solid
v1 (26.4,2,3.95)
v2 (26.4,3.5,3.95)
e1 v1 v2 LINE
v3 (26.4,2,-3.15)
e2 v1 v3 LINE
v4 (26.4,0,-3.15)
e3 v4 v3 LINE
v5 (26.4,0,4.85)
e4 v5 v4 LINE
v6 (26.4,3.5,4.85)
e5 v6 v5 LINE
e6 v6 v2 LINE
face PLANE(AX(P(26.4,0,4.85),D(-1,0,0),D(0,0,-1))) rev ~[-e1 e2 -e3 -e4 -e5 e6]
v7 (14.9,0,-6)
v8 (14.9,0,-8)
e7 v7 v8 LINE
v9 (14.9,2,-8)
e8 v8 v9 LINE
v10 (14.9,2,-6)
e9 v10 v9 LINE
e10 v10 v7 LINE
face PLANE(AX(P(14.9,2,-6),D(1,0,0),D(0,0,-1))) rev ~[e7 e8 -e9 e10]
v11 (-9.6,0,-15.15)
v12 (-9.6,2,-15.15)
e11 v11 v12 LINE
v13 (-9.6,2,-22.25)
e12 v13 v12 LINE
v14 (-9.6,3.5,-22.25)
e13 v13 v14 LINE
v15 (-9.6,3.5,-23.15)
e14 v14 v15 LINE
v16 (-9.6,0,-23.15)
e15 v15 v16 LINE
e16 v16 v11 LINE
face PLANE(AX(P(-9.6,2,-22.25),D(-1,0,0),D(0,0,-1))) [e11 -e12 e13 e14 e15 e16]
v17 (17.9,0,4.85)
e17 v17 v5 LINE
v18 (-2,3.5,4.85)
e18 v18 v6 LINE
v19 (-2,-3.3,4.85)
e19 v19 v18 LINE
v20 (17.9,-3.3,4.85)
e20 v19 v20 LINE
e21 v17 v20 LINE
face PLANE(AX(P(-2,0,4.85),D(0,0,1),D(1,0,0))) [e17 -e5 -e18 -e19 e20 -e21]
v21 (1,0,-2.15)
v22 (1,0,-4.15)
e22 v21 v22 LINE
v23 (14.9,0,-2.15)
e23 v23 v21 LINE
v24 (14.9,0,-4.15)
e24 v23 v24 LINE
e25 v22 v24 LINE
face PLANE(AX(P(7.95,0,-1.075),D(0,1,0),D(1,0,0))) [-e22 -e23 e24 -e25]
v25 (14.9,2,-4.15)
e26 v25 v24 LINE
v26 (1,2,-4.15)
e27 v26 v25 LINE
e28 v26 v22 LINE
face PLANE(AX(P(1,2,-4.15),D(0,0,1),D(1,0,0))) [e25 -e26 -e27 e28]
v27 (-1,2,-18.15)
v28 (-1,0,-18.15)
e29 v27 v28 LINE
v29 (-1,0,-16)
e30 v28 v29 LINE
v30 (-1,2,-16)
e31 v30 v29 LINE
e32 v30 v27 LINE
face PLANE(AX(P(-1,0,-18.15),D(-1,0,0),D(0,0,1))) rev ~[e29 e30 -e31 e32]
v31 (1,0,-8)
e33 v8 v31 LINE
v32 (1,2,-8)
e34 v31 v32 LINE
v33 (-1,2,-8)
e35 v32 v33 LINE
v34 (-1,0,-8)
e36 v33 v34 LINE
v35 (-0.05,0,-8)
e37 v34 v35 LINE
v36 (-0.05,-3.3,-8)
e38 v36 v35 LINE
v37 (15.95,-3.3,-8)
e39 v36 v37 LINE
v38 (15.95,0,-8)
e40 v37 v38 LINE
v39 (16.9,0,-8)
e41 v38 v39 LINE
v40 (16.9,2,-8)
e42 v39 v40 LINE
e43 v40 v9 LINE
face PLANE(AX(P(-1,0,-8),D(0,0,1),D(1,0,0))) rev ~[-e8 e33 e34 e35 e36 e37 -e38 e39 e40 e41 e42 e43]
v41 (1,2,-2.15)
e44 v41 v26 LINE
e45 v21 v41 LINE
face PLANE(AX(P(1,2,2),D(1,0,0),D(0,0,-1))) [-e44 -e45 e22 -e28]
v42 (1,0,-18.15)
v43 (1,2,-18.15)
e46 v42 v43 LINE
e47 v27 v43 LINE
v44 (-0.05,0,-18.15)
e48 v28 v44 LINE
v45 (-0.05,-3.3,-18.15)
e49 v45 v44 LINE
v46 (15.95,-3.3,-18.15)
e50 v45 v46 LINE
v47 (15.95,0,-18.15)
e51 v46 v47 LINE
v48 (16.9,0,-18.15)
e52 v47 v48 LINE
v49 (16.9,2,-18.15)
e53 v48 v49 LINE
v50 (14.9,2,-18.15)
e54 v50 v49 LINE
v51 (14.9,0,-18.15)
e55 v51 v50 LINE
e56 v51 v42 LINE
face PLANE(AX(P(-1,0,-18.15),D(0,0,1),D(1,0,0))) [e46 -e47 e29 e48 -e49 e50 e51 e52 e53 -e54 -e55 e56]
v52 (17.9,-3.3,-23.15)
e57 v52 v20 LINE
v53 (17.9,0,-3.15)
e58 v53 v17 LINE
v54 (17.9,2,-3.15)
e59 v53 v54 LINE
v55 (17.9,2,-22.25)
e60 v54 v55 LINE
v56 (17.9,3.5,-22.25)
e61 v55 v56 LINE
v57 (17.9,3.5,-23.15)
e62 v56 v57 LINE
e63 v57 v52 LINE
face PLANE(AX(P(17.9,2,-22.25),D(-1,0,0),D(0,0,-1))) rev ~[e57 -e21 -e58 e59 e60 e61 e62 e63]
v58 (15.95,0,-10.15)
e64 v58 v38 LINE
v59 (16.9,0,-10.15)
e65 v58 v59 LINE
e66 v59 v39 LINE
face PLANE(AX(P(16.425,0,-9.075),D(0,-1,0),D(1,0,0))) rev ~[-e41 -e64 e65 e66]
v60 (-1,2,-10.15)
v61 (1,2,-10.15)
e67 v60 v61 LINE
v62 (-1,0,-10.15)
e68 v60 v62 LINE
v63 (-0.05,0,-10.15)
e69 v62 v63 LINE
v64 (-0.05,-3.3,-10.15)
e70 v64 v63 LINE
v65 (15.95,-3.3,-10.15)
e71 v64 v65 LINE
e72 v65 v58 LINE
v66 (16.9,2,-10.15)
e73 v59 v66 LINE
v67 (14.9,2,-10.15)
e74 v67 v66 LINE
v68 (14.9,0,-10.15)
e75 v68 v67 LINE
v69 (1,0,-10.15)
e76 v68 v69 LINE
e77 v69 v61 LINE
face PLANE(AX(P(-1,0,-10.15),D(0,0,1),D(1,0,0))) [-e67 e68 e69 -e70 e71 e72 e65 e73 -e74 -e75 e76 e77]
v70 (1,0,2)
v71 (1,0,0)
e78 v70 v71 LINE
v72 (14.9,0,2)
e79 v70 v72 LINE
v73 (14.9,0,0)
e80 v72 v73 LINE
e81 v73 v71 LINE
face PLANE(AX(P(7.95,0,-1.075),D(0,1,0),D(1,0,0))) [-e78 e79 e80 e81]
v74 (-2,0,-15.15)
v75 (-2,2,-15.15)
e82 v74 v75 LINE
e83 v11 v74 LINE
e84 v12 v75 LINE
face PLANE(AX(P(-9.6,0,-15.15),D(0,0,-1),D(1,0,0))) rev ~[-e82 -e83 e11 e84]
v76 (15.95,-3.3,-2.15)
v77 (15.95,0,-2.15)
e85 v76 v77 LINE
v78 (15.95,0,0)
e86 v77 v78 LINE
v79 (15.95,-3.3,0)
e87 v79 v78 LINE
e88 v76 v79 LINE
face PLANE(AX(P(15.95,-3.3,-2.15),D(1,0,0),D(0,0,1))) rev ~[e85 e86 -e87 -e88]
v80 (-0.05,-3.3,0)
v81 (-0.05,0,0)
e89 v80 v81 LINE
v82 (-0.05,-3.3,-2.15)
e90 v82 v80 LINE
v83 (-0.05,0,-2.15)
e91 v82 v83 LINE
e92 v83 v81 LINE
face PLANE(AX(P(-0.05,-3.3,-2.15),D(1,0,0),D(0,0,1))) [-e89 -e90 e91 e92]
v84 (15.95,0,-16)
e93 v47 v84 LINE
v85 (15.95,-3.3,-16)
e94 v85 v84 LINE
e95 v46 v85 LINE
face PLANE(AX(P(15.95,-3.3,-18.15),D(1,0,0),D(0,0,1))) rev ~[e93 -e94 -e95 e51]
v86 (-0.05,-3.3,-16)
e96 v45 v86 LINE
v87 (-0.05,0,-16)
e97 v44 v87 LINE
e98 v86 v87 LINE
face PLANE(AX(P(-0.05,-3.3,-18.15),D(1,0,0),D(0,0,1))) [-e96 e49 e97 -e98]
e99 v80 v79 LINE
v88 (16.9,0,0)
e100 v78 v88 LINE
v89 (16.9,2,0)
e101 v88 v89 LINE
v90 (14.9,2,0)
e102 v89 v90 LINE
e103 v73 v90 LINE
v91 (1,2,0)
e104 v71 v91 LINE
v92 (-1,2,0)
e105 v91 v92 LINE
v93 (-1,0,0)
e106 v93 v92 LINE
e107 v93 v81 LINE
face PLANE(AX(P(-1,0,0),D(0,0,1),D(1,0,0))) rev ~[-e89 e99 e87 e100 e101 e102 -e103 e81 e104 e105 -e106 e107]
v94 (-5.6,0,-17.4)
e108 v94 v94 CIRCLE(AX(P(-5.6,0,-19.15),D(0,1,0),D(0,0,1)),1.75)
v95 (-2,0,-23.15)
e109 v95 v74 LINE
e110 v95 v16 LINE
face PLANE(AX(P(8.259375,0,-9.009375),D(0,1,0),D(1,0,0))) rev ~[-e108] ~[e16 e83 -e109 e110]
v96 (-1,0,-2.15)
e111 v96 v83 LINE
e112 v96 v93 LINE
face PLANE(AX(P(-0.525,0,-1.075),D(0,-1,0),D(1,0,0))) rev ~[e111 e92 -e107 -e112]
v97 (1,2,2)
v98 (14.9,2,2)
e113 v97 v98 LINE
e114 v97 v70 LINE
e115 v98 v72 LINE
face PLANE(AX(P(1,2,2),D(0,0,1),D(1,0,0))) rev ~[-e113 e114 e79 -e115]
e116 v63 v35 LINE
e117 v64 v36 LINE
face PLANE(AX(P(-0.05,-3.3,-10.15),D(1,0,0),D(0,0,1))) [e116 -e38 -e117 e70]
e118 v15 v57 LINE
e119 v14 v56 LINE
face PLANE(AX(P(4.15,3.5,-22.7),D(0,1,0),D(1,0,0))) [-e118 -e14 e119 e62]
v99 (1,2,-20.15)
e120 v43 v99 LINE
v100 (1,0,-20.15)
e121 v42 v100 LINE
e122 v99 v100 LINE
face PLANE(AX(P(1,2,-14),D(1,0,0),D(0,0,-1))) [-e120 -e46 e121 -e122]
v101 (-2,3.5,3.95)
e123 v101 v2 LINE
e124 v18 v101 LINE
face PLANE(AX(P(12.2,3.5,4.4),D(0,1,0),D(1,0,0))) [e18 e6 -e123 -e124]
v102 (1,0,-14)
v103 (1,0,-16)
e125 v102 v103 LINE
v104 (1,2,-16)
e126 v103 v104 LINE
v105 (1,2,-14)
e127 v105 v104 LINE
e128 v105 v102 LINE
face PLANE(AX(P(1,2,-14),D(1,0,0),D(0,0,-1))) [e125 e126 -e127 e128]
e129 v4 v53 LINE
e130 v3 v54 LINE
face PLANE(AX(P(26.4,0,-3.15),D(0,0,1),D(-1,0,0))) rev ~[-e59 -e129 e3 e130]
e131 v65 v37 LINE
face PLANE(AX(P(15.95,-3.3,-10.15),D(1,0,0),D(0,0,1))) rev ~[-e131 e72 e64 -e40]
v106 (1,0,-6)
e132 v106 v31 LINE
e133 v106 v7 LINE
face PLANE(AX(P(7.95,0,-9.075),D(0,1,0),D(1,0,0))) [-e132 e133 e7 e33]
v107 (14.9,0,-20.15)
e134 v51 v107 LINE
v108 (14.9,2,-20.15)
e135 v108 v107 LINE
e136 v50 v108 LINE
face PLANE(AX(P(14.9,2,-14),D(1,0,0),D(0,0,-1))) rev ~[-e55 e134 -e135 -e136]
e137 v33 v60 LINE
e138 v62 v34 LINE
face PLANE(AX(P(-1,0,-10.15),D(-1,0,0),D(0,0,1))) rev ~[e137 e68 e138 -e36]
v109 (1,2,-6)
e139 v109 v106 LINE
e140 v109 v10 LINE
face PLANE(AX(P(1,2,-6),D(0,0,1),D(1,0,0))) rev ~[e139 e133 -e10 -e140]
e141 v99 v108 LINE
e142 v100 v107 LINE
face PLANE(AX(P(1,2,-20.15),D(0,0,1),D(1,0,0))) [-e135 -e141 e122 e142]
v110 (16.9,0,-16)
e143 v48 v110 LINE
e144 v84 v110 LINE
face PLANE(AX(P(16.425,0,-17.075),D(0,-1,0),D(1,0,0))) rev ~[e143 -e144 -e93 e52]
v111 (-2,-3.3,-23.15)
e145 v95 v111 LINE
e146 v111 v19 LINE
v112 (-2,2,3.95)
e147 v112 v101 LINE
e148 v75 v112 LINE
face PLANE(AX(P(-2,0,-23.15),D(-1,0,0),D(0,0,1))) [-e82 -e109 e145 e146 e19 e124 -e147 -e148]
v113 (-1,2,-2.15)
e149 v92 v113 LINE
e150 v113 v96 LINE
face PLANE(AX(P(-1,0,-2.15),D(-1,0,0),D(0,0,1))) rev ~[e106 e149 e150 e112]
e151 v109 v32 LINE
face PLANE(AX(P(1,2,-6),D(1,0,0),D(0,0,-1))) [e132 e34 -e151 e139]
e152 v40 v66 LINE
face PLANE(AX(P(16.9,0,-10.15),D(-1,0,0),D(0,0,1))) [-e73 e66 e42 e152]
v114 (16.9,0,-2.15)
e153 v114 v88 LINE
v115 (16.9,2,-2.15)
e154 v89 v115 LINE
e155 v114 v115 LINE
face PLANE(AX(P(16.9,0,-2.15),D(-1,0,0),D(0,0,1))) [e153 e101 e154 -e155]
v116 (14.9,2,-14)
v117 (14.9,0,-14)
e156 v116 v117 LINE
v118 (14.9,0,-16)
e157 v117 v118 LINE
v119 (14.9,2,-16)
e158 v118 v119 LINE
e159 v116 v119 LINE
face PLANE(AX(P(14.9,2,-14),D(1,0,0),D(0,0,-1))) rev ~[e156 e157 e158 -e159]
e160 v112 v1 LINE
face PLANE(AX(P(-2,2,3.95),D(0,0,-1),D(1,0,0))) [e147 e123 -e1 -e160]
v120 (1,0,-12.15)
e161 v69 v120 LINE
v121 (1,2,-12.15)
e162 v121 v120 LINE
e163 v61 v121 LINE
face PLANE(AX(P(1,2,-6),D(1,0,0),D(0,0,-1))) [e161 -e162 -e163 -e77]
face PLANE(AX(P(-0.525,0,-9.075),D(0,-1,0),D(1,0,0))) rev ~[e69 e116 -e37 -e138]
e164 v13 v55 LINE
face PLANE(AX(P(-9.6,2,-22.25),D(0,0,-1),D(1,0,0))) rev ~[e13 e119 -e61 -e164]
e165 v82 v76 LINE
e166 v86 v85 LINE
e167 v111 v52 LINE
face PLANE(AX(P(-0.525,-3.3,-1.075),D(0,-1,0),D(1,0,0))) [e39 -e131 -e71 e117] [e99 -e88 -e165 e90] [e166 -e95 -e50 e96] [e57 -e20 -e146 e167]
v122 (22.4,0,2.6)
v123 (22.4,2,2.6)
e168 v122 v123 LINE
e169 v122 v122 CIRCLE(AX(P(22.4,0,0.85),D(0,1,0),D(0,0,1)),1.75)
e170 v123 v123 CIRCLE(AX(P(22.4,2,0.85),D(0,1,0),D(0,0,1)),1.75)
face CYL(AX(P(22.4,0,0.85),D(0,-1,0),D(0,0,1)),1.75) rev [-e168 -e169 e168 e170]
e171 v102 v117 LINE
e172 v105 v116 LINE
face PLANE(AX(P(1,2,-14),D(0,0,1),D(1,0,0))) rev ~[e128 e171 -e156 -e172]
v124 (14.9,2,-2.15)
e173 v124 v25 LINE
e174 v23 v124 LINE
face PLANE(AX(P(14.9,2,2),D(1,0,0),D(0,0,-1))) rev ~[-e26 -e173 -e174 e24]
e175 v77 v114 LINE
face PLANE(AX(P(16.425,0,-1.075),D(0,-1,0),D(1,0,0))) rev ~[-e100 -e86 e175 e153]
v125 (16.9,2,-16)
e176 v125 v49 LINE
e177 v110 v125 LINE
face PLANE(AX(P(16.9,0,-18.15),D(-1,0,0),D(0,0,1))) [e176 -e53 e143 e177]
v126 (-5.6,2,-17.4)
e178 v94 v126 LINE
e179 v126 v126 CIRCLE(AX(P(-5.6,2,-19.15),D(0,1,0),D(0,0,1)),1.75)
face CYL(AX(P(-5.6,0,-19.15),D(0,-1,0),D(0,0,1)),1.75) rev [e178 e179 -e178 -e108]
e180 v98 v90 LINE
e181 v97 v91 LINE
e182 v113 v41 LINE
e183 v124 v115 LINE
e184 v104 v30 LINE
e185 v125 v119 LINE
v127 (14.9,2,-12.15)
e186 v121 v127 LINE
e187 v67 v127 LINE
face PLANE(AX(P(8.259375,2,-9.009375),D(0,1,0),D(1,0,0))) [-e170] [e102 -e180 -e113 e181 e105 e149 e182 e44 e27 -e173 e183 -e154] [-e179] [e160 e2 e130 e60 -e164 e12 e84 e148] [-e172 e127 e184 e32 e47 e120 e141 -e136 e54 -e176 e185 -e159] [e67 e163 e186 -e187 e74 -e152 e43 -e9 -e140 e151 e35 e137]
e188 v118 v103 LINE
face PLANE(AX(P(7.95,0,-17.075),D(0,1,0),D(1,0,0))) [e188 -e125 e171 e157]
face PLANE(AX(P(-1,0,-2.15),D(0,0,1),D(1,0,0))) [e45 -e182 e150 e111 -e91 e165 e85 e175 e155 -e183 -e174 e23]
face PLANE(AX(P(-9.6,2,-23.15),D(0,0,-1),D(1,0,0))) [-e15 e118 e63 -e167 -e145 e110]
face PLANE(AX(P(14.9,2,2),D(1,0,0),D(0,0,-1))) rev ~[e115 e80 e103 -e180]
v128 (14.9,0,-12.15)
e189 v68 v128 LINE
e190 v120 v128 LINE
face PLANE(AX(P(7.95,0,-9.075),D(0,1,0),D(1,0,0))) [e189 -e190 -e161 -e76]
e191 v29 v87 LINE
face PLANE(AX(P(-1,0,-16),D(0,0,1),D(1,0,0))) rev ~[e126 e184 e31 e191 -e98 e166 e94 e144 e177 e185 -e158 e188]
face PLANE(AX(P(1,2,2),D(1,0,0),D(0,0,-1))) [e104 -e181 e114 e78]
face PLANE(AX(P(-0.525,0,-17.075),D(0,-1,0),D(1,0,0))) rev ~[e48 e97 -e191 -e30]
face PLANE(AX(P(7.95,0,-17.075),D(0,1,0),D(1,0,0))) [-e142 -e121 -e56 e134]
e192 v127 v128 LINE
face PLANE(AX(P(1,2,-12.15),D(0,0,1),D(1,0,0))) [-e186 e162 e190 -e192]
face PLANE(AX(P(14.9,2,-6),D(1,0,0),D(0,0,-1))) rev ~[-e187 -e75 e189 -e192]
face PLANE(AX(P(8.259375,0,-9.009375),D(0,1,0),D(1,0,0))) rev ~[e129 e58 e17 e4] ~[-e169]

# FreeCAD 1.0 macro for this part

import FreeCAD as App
import Part
import Sketcher
from FreeCAD import Vector

doc = App.newDocument("Part")
body = doc.addObject("PartDesign::Body", "Body")

# Sketch on XZ plane
sketch1 = body.newObject("Sketcher::SketchObject", "Sketch")
sketch1.AttachmentSupport = (doc.getObject("XZ_Plane"), [""])
sketch1.MapMode = "FlatFace"
sketch1.addGeometry([
    Part.LineSegment(Vector(-2, -15.15, 0), Vector(-2, 4.85, 0)),  # 0
    Part.LineSegment(Vector(-2, 4.85, 0), Vector(26.4, 4.85, 0)),  # 1
    Part.LineSegment(Vector(26.4, 4.85, 0), Vector(26.4, -3.15, 0)),  # 2
    Part.LineSegment(Vector(26.4, -3.15, 0), Vector(17.9, -3.15, 0)),  # 3
    Part.LineSegment(Vector(17.9, -3.15, 0), Vector(17.9, -23.15, 0)),  # 4
    Part.LineSegment(Vector(17.9, -23.15, 0), Vector(-9.6, -23.15, 0)),  # 5
    Part.LineSegment(Vector(-9.6, -23.15, 0), Vector(-9.6, -15.15, 0)),  # 6
    Part.LineSegment(Vector(-9.6, -15.15, 0), Vector(-2, -15.15, 0)),  # 7
    Part.LineSegment(Vector(15.9, 0, 0), Vector(0, 0, 0)),  # 8
    Part.LineSegment(Vector(0, 0, 0), Vector(0, -2.15, 0)),  # 9
    Part.LineSegment(Vector(0, -2.15, 0), Vector(15.9, -2.15, 0)),  # 10
    Part.LineSegment(Vector(15.9, -2.15, 0), Vector(15.9, 0, 0)),  # 11
    Part.LineSegment(Vector(15.9, -8, 0), Vector(0, -8, 0)),  # 12
    Part.LineSegment(Vector(0, -8, 0), Vector(0, -10.15, 0)),  # 13
    Part.LineSegment(Vector(0, -10.15, 0), Vector(15.9, -10.15, 0)),  # 14
    Part.LineSegment(Vector(15.9, -10.15, 0), Vector(15.9, -8, 0)),  # 15
    Part.Circle(Vector(22.4, 0.85, 0), Vector(0, 0, 1), 1.75),  # 16
    Part.Circle(Vector(-5.6, -19.15, 0), Vector(0, 0, 1), 1.75),  # 17
    Part.LineSegment(Vector(15.9, -16, 0), Vector(0, -16, 0)),  # 18
    Part.LineSegment(Vector(0, -16, 0), Vector(0, -18.15, 0)),  # 19
    Part.LineSegment(Vector(0, -18.15, 0), Vector(15.9, -18.15, 0)),  # 20
    Part.LineSegment(Vector(15.9, -18.15, 0), Vector(15.9, -16, 0)),  # 21
], False)
sketch1.addConstraint([
    Sketcher.Constraint("Coincident", 0, 2, 1, 1),
    Sketcher.Constraint("Coincident", 1, 2, 2, 1),
    Sketcher.Constraint("Coincident", 2, 2, 3, 1),
    Sketcher.Constraint("Coincident", 3, 2, 4, 1),
    Sketcher.Constraint("Coincident", 4, 2, 5, 1),
    Sketcher.Constraint("Coincident", 5, 2, 6, 1),
    Sketcher.Constraint("Coincident", 6, 2, 7, 1),
    Sketcher.Constraint("Coincident", 7, 2, 0, 1),
    Sketcher.Constraint("Coincident", 8, 2, 9, 1),
    Sketcher.Constraint("Coincident", 9, 2, 10, 1),
    Sketcher.Constraint("Coincident", 10, 2, 11, 1),
    Sketcher.Constraint("Coincident", 11, 2, 8, 1),
    Sketcher.Constraint("Coincident", 12, 2, 13, 1),
    Sketcher.Constraint("Coincident", 13, 2, 14, 1),
    Sketcher.Constraint("Coincident", 14, 2, 15, 1),
    Sketcher.Constraint("Coincident", 15, 2, 12, 1),
    Sketcher.Constraint("Coincident", 18, 2, 19, 1),
    Sketcher.Constraint("Coincident", 19, 2, 20, 1),
    Sketcher.Constraint("Coincident", 20, 2, 21, 1),
    Sketcher.Constraint("Coincident", 21, 2, 18, 1),
    Sketcher.Constraint("Vertical", 0),
    Sketcher.Constraint("Horizontal", 1),
    Sketcher.Constraint("Vertical", 2),
    Sketcher.Constraint("Horizontal", 3),
    Sketcher.Constraint("Vertical", 4),
    Sketcher.Constraint("Horizontal", 5),
    Sketcher.Constraint("Vertical", 6),
    Sketcher.Constraint("Horizontal", 7),
    Sketcher.Constraint("Horizontal", 8),
    Sketcher.Constraint("Vertical", 9),
    Sketcher.Constraint("Horizontal", 10),
    Sketcher.Constraint("Vertical", 11),
    Sketcher.Constraint("Horizontal", 12),
    Sketcher.Constraint("Vertical", 13),
    Sketcher.Constraint("Horizontal", 14),
    Sketcher.Constraint("Vertical", 15),
    Sketcher.Constraint("Horizontal", 18),
    Sketcher.Constraint("Vertical", 19),
    Sketcher.Constraint("Horizontal", 20),
    Sketcher.Constraint("Vertical", 21),
    Sketcher.Constraint("Coincident", 8, 2, -1, 1),
    Sketcher.Constraint("Equal", 16, 17),
    Sketcher.Constraint("PointOnObject", 12, 2, -2),
    Sketcher.Constraint("PointOnObject", 18, 2, -2),
    Sketcher.Constraint("Vertical", 11, 2, 14, 2),
    Sketcher.Constraint("Vertical", 15, 2, 20, 2),
    Sketcher.Constraint("Equal", 0, 4),
    Sketcher.Constraint("Equal", 11, 13),
    Sketcher.Constraint("Equal", 15, 19),
    Sketcher.Constraint("Diameter", 16, 3.5),
    Sketcher.Constraint("DistanceY", 0, 1, 0, 2, 20.0),
    Sketcher.Constraint("DistanceY", 2, 2, 2, 1, 8.0),
    Sketcher.Constraint("DistanceX", 1, 1, 1, 2, 28.4),
    Sketcher.Constraint("DistanceX", 3, 2, 3, 1, 8.5),
    Sketcher.Constraint("DistanceX", 5, 2, 5, 1, 27.5),
    Sketcher.Constraint("DistanceX", 8, 2, 8, 1, 15.9),
    Sketcher.Constraint("DistanceX", 0, 2, -1, 1, 2.0),
    Sketcher.Constraint("DistanceY", 12, 2, -1, 1, 8.0),
    Sketcher.Constraint("DistanceY", 18, 2, -1, 1, 16.0),
    Sketcher.Constraint("DistanceX", 17, 3, 16, 3, 28.0),
    Sketcher.Constraint("DistanceY", 17, 3, 16, 3, 20.0),
    Sketcher.Constraint("DistanceY", 17, 3, 0, 2, 24.0),
    Sketcher.Constraint("DistanceX", 16, 3, 1, 2, 4.0),
    Sketcher.Constraint("DistanceY", 9, 2, 0, 2, 7.0),
    Sketcher.Constraint("DistanceY", 9, 2, 9, 1, 2.15),
])
pad1 = body.newObject("PartDesign::Pad", "Pad")
pad1.Profile = sketch1
pad1.Length = 2
pad1.Reversed = True

# Sketch on XZ plane
sketch2 = body.newObject("Sketcher::SketchObject", "Sketch001")
sketch2.AttachmentSupport = (doc.getObject("XZ_Plane"), [""])
sketch2.MapMode = "FlatFace"
sketch2.AttachmentOffset = App.Placement(Vector(0, 0, -2), App.Rotation())
sketch2.addGeometry([
    Part.LineSegment(Vector(-1, -18.15, 0), Vector(-1, -16, 0)),  # 0
    Part.LineSegment(Vector(-1, -16, 0), Vector(16.9, -16, 0)),  # 1
    Part.LineSegment(Vector(16.9, -16, 0), Vector(16.9, -18.15, 0)),  # 2
    Part.LineSegment(Vector(16.9, -18.15, 0), Vector(-1, -18.15, 0)),  # 3
    Part.LineSegment(Vector(-1, -10.15, 0), Vector(-1, -8, 0)),  # 4
    Part.LineSegment(Vector(-1, -8, 0), Vector(16.9, -8, 0)),  # 5
    Part.LineSegment(Vector(16.9, -8, 0), Vector(16.9, -10.15, 0)),  # 6
    Part.LineSegment(Vector(16.9, -10.15, 0), Vector(-1, -10.15, 0)),  # 7
    Part.LineSegment(Vector(-1, -2.15, 0), Vector(-1, 0, 0)),  # 8
    Part.LineSegment(Vector(-1, 0, 0), Vector(16.9, 0, 0)),  # 9
    Part.LineSegment(Vector(16.9, 0, 0), Vector(16.9, -2.15, 0)),  # 10
    Part.LineSegment(Vector(16.9, -2.15, 0), Vector(-1, -2.15, 0)),  # 11
], False)
sketch2.addConstraint([
    Sketcher.Constraint("Coincident", 0, 2, 1, 1),
    Sketcher.Constraint("Coincident", 1, 2, 2, 1),
    Sketcher.Constraint("Coincident", 2, 2, 3, 1),
    Sketcher.Constraint("Coincident", 3, 2, 0, 1),
    Sketcher.Constraint("Coincident", 4, 2, 5, 1),
    Sketcher.Constraint("Coincident", 5, 2, 6, 1),
    Sketcher.Constraint("Coincident", 6, 2, 7, 1),
    Sketcher.Constraint("Coincident", 7, 2, 4, 1),
    Sketcher.Constraint("Coincident", 8, 2, 9, 1),
    Sketcher.Constraint("Coincident", 9, 2, 10, 1),
    Sketcher.Constraint("Coincident", 10, 2, 11, 1),
    Sketcher.Constraint("Coincident", 11, 2, 8, 1),
    Sketcher.Constraint("Vertical", 0),
    Sketcher.Constraint("Horizontal", 1),
    Sketcher.Constraint("Vertical", 2),
    Sketcher.Constraint("Horizontal", 3),
    Sketcher.Constraint("Vertical", 4),
    Sketcher.Constraint("Horizontal", 5),
    Sketcher.Constraint("Vertical", 6),
    Sketcher.Constraint("Horizontal", 7),
    Sketcher.Constraint("Vertical", 8),
    Sketcher.Constraint("Horizontal", 9),
    Sketcher.Constraint("Vertical", 10),
    Sketcher.Constraint("Horizontal", 11),
    Sketcher.Constraint("PointOnObject", 8, 2, -1),
    Sketcher.Constraint("Vertical", 3, 2, 4, 2),
    Sketcher.Constraint("Vertical", 2, 2, 5, 2),
    Sketcher.Constraint("Vertical", 7, 2, 8, 2),
    Sketcher.Constraint("Vertical", 6, 2, 9, 2),
    Sketcher.Constraint("Equal", 2, 4),
    Sketcher.Constraint("Equal", 6, 8),
    Sketcher.Constraint("DistanceX", 1, 1, 1, 2, 17.9),
    Sketcher.Constraint("DistanceX", 0, 2, -1, 1, 1.0),
    Sketcher.Constraint("DistanceY", 0, 2, -1, 1, 16.0),
    Sketcher.Constraint("DistanceY", 4, 2, -1, 1, 8.0),
    Sketcher.Constraint("DistanceY", 0, 1, 0, 2, 2.15),
])
pocket1 = body.newObject("PartDesign::Pocket", "Pocket")
pocket1.Profile = sketch2
pocket1.Length = 2
pocket1.Reversed = True

# Sketch on XZ plane
sketch3 = body.newObject("Sketcher::SketchObject", "Sketch002")
sketch3.AttachmentSupport = (doc.getObject("XZ_Plane"), [""])
sketch3.MapMode = "FlatFace"
sketch3.addGeometry([
    Part.LineSegment(Vector(-2, 4.85, 0), Vector(-2, -23.15, 0)),  # 0
    Part.LineSegment(Vector(-2, -23.15, 0), Vector(17.9, -23.15, 0)),  # 1
    Part.LineSegment(Vector(17.9, -23.15, 0), Vector(17.9, 4.85, 0)),  # 2
    Part.LineSegment(Vector(17.9, 4.85, 0), Vector(-2, 4.85, 0)),  # 3
    Part.LineSegment(Vector(16.9, -18.15, 0), Vector(-1, -18.15, 0)),  # 4
    Part.LineSegment(Vector(-1, -18.15, 0), Vector(-1, -16, 0)),  # 5
    Part.LineSegment(Vector(-1, -16, 0), Vector(16.9, -16, 0)),  # 6
    Part.LineSegment(Vector(16.9, -16, 0), Vector(16.9, -18.15, 0)),  # 7
    Part.LineSegment(Vector(16.9, -10.15, 0), Vector(-1, -10.15, 0)),  # 8
    Part.LineSegment(Vector(-1, -10.15, 0), Vector(-1, -8, 0)),  # 9
    Part.LineSegment(Vector(-1, -8, 0), Vector(16.9, -8, 0)),  # 10
    Part.LineSegment(Vector(16.9, -8, 0), Vector(16.9, -10.15, 0)),  # 11
    Part.LineSegment(Vector(16.9, -2.15, 0), Vector(-1, -2.15, 0)),  # 12
    Part.LineSegment(Vector(-1, -2.15, 0), Vector(-1, 0, 0)),  # 13
    Part.LineSegment(Vector(-1, 0, 0), Vector(16.9, 0, 0)),  # 14
    Part.LineSegment(Vector(16.9, 0, 0), Vector(16.9, -2.15, 0)),  # 15
], False)
sketch3.addConstraint([
    Sketcher.Constraint("Coincident", 0, 2, 1, 1),
    Sketcher.Constraint("Coincident", 1, 2, 2, 1),
    Sketcher.Constraint("Coincident", 2, 2, 3, 1),
    Sketcher.Constraint("Coincident", 3, 2, 0, 1),
    Sketcher.Constraint("Coincident", 4, 2, 5, 1),
    Sketcher.Constraint("Coincident", 5, 2, 6, 1),
    Sketcher.Constraint("Coincident", 6, 2, 7, 1),
    Sketcher.Constraint("Coincident", 7, 2, 4, 1),
    Sketcher.Constraint("Coincident", 8, 2, 9, 1),
    Sketcher.Constraint("Coincident", 9, 2, 10, 1),
    Sketcher.Constraint("Coincident", 10, 2, 11, 1),
    Sketcher.Constraint("Coincident", 11, 2, 8, 1),
    Sketcher.Constraint("Coincident", 12, 2, 13, 1),
    Sketcher.Constraint("Coincident", 13, 2, 14, 1),
    Sketcher.Constraint("Coincident", 14, 2, 15, 1),
    Sketcher.Constraint("Coincident", 15, 2, 12, 1),
    Sketcher.Constraint("Vertical", 0),
    Sketcher.Constraint("Horizontal", 1),
    Sketcher.Constraint("Vertical", 2),
    Sketcher.Constraint("Horizontal", 3),
    Sketcher.Constraint("Horizontal", 4),
    Sketcher.Constraint("Vertical", 5),
    Sketcher.Constraint("Horizontal", 6),
    Sketcher.Constraint("Vertical", 7),
    Sketcher.Constraint("Horizontal", 8),
    Sketcher.Constraint("Vertical", 9),
    Sketcher.Constraint("Horizontal", 10),
    Sketcher.Constraint("Vertical", 11),
    Sketcher.Constraint("Horizontal", 12),
    Sketcher.Constraint("Vertical", 13),
    Sketcher.Constraint("Horizontal", 14),
    Sketcher.Constraint("Vertical", 15),
    Sketcher.Constraint("PointOnObject", 13, 2, -1),
    Sketcher.Constraint("Vertical", 5, 2, 8, 2),
    Sketcher.Constraint("Vertical", 7, 2, 10, 2),
    Sketcher.Constraint("Vertical", 9, 2, 12, 2),
    Sketcher.Constraint("Vertical", 11, 2, 14, 2),
    Sketcher.Constraint("Equal", 7, 9),
    Sketcher.Constraint("Equal", 11, 13),
    Sketcher.Constraint("DistanceY", 0, 2, 0, 1, 28.0),
    Sketcher.Constraint("DistanceX", 1, 1, 1, 2, 19.9),
    Sketcher.Constraint("DistanceX", 4, 2, 4, 1, 17.9),
    Sketcher.Constraint("DistanceX", 0, 2, -1, 1, 2.0),
    Sketcher.Constraint("DistanceX", 4, 2, -1, 1, 1.0),
    Sketcher.Constraint("DistanceY", 5, 2, -1, 1, 16.0),
    Sketcher.Constraint("DistanceY", 9, 2, -1, 1, 8.0),
    Sketcher.Constraint("DistanceY", 0, 2, 4, 2, 5.0),
    Sketcher.Constraint("DistanceY", 5, 1, 5, 2, 2.15),
])
pad2 = body.newObject("PartDesign::Pad", "Pad001")
pad2.Profile = sketch3
pad2.Length = 3.3

# Sketch on XZ plane
sketch4 = body.newObject("Sketcher::SketchObject", "Sketch003")
sketch4.AttachmentSupport = (doc.getObject("XZ_Plane"), [""])
sketch4.MapMode = "FlatFace"
sketch4.AttachmentOffset = App.Placement(Vector(0, 0, -2), App.Rotation())
sketch4.addGeometry([
    Part.LineSegment(Vector(-9.6, -23.15, 0), Vector(-9.6, -22.25, 0)),
    Part.LineSegment(Vector(-9.6, -22.25, 0), Vector(17.9, -22.25, 0)),
    Part.LineSegment(Vector(17.9, -22.25, 0), Vector(17.9, -23.15, 0)),
    Part.LineSegment(Vector(17.9, -23.15, 0), Vector(-9.6, -23.15, 0)),
], False)
sketch4.addConstraint([
    Sketcher.Constraint("Coincident", 0, 2, 1, 1),
    Sketcher.Constraint("Coincident", 1, 2, 2, 1),
    Sketcher.Constraint("Coincident", 2, 2, 3, 1),
    Sketcher.Constraint("Coincident", 3, 2, 0, 1),
    Sketcher.Constraint("Vertical", 0),
    Sketcher.Constraint("Horizontal", 1),
    Sketcher.Constraint("Vertical", 2),
    Sketcher.Constraint("Horizontal", 3),
    Sketcher.Constraint("DistanceX", 1, 1, 1, 2, 27.5),
    Sketcher.Constraint("DistanceY", 0, 1, 0, 2, 0.9),
    Sketcher.Constraint("DistanceX", 0, 2, -1, 1, 9.6),
    Sketcher.Constraint("DistanceY", 0, 2, -1, 1, 22.25),
])
pad3 = body.newObject("PartDesign::Pad", "Pad002")
pad3.Profile = sketch4
pad3.Length = 1.5
pad3.Reversed = True

# Sketch on XZ plane
sketch5 = body.newObject("Sketcher::SketchObject", "Sketch004")
sketch5.AttachmentSupport = (doc.getObject("XZ_Plane"), [""])
sketch5.MapMode = "FlatFace"
sketch5.AttachmentOffset = App.Placement(Vector(0, 0, -2), App.Rotation())
sketch5.addGeometry([
    Part.LineSegment(Vector(-9.6, -23.15, 0), Vector(-9.6, -22.25, 0)),  # 0
    Part.LineSegment(Vector(-9.6, -22.25, 0), Vector(17.9, -22.25, 0)),  # 1
    Part.LineSegment(Vector(17.9, -22.25, 0), Vector(17.9, -23.15, 0)),  # 2
    Part.LineSegment(Vector(17.9, -23.15, 0), Vector(-9.6, -23.15, 0)),  # 3
    Part.LineSegment(Vector(-2, 3.95, 0), Vector(-2, 4.85, 0)),  # 4
    Part.LineSegment(Vector(-2, 4.85, 0), Vector(26.4, 4.85, 0)),  # 5
    Part.LineSegment(Vector(26.4, 4.85, 0), Vector(26.4, 3.95, 0)),  # 6
    Part.LineSegment(Vector(26.4, 3.95, 0), Vector(-2, 3.95, 0)),  # 7
], False)
sketch5.addConstraint([
    Sketcher.Constraint("Coincident", 0, 2, 1, 1),
    Sketcher.Constraint("Coincident", 1, 2, 2, 1),
    Sketcher.Constraint("Coincident", 2, 2, 3, 1),
    Sketcher.Constraint("Coincident", 3, 2, 0, 1),
    Sketcher.Constraint("Coincident", 4, 2, 5, 1),
    Sketcher.Constraint("Coincident", 5, 2, 6, 1),
    Sketcher.Constraint("Coincident", 6, 2, 7, 1),
    Sketcher.Constraint("Coincident", 7, 2, 4, 1),
    Sketcher.Constraint("Vertical", 0),
    Sketcher.Constraint("Horizontal", 1),
    Sketcher.Constraint("Vertical", 2),
    Sketcher.Constraint("Horizontal", 3),
    Sketcher.Constraint("Vertical", 4),
    Sketcher.Constraint("Horizontal", 5),
    Sketcher.Constraint("Vertical", 6),
    Sketcher.Constraint("Horizontal", 7),
    Sketcher.Constraint("Equal", 2, 4),
    Sketcher.Constraint("DistanceX", 1, 1, 1, 2, 27.5),
    Sketcher.Constraint("DistanceX", 5, 1, 5, 2, 28.4),
    Sketcher.Constraint("DistanceY", 0, 1, 0, 2, 0.9),
    Sketcher.Constraint("DistanceX", 4, 2, -1, 1, 2.0),
    Sketcher.Constraint("DistanceY", 3, 2, 4, 2, 28.0),
    Sketcher.Constraint("DistanceX", 0, 2, 5, 2, 36.0),
    Sketcher.Constraint("DistanceY", 0, 2, -1, 1, 22.25),
])
pad4 = body.newObject("PartDesign::Pad", "Pad003")
pad4.Profile = sketch5
pad4.Length = 1.5
pad4.Reversed = True

# Sketch on XZ plane
sketch6 = body.newObject("Sketcher::SketchObject", "Sketch005")
sketch6.AttachmentSupport = (doc.getObject("XZ_Plane"), [""])
sketch6.MapMode = "FlatFace"
sketch6.AttachmentOffset = App.Placement(Vector(0, 0, -2), App.Rotation())
sketch6.addGeometry([
    Part.LineSegment(Vector(1, -20.15, 0), Vector(1, -14, 0)),  # 0
    Part.LineSegment(Vector(1, -14, 0), Vector(14.9, -14, 0)),  # 1
    Part.LineSegment(Vector(14.9, -14, 0), Vector(14.9, -20.15, 0)),  # 2
    Part.LineSegment(Vector(14.9, -20.15, 0), Vector(1, -20.15, 0)),  # 3
    Part.LineSegment(Vector(1, -4.15, 0), Vector(1, 2, 0)),  # 4
    Part.LineSegment(Vector(1, 2, 0), Vector(14.9, 2, 0)),  # 5
    Part.LineSegment(Vector(14.9, 2, 0), Vector(14.9, -4.15, 0)),  # 6
    Part.LineSegment(Vector(14.9, -4.15, 0), Vector(1, -4.15, 0)),  # 7
    Part.LineSegment(Vector(1, -12.15, 0), Vector(1, -6, 0)),  # 8
    Part.LineSegment(Vector(1, -6, 0), Vector(14.9, -6, 0)),  # 9
    Part.LineSegment(Vector(14.9, -6, 0), Vector(14.9, -12.15, 0)),  # 10
    Part.LineSegment(Vector(14.9, -12.15, 0), Vector(1, -12.15, 0)),  # 11
], False)
sketch6.addConstraint([
    Sketcher.Constraint("Coincident", 0, 2, 1, 1),
    Sketcher.Constraint("Coincident", 1, 2, 2, 1),
    Sketcher.Constraint("Coincident", 2, 2, 3, 1),
    Sketcher.Constraint("Coincident", 3, 2, 0, 1),
    Sketcher.Constraint("Coincident", 4, 2, 5, 1),
    Sketcher.Constraint("Coincident", 5, 2, 6, 1),
    Sketcher.Constraint("Coincident", 6, 2, 7, 1),
    Sketcher.Constraint("Coincident", 7, 2, 4, 1),
    Sketcher.Constraint("Coincident", 8, 2, 9, 1),
    Sketcher.Constraint("Coincident", 9, 2, 10, 1),
    Sketcher.Constraint("Coincident", 10, 2, 11, 1),
    Sketcher.Constraint("Coincident", 11, 2, 8, 1),
    Sketcher.Constraint("Vertical", 0),
    Sketcher.Constraint("Horizontal", 1),
    Sketcher.Constraint("Vertical", 2),
    Sketcher.Constraint("Horizontal", 3),
    Sketcher.Constraint("Vertical", 4),
    Sketcher.Constraint("Horizontal", 5),
    Sketcher.Constraint("Vertical", 6),
    Sketcher.Constraint("Horizontal", 7),
    Sketcher.Constraint("Vertical", 8),
    Sketcher.Constraint("Horizontal", 9),
    Sketcher.Constraint("Vertical", 10),
    Sketcher.Constraint("Horizontal", 11),
    Sketcher.Constraint("Vertical", 3, 2, 4, 2),
    Sketcher.Constraint("Vertical", 2, 2, 5, 2),
    Sketcher.Constraint("Vertical", 7, 2, 8, 2),
    Sketcher.Constraint("Vertical", 6, 2, 9, 2),
    Sketcher.Constraint("Equal", 2, 4),
    Sketcher.Constraint("Equal", 6, 8),
    Sketcher.Constraint("DistanceX", 1, 1, 1, 2, 13.9),
    Sketcher.Constraint("DistanceX", -1, 1, 0, 2, 1.0),
    Sketcher.Constraint("DistanceY", 0, 2, -1, 1, 14.0),
    Sketcher.Constraint("DistanceY", -1, 1, 4, 2, 2.0),
    Sketcher.Constraint("DistanceY", 8, 2, -1, 1, 6.0),
    Sketcher.Constraint("DistanceY", 0, 1, 0, 2, 6.15),
])
pocket2 = body.newObject("PartDesign::Pocket", "Pocket001")
pocket2.Profile = sketch6
pocket2.Length = 2
pocket2.Reversed = True

# Sketch on XZ plane
sketch7 = body.newObject("Sketcher::SketchObject", "Sketch006")
sketch7.AttachmentSupport = (doc.getObject("XZ_Plane"), [""])
sketch7.MapMode = "FlatFace"
sketch7.AttachmentOffset = App.Placement(Vector(0, 0, 3.3), App.Rotation())
sketch7.addGeometry([
    Part.LineSegment(Vector(-1, 0, 0), Vector(-1, -2.15, 0)),  # 0
    Part.LineSegment(Vector(-1, -2.15, 0), Vector(-0.05, -2.15, 0)),  # 1
    Part.LineSegment(Vector(-0.05, -2.15, 0), Vector(-0.05, 0, 0)),  # 2
    Part.LineSegment(Vector(-0.05, 0, 0), Vector(-1, 0, 0)),  # 3
    Part.LineSegment(Vector(-1, -16, 0), Vector(-1, -18.15, 0)),  # 4
    Part.LineSegment(Vector(-1, -18.15, 0), Vector(-0.05, -18.15, 0)),  # 5
    Part.LineSegment(Vector(-0.05, -18.15, 0), Vector(-0.05, -16, 0)),  # 6
    Part.LineSegment(Vector(-0.05, -16, 0), Vector(-1, -16, 0)),  # 7
    Part.LineSegment(Vector(15.95, 0, 0), Vector(15.95, -2.15, 0)),  # 8
    Part.LineSegment(Vector(15.95, -2.15, 0), Vector(16.9, -2.15, 0)),  # 9
    Part.LineSegment(Vector(16.9, -2.15, 0), Vector(16.9, 0, 0)),  # 10
    Part.LineSegment(Vector(16.9, 0, 0), Vector(15.95, 0, 0)),  # 11
    Part.LineSegment(Vector(15.95, -16, 0), Vector(15.95, -18.15, 0)),  # 12
    Part.LineSegment(Vector(15.95, -18.15, 0), Vector(16.9, -18.15, 0)),  # 13
    Part.LineSegment(Vector(16.9, -18.15, 0), Vector(16.9, -16, 0)),  # 14
    Part.LineSegment(Vector(16.9, -16, 0), Vector(15.95, -16, 0)),  # 15
    Part.LineSegment(Vector(-1, -8, 0), Vector(-1, -10.15, 0)),  # 16
    Part.LineSegment(Vector(-1, -10.15, 0), Vector(-0.05, -10.15, 0)),  # 17
    Part.LineSegment(Vector(-0.05, -10.15, 0), Vector(-0.05, -8, 0)),  # 18
    Part.LineSegment(Vector(-0.05, -8, 0), Vector(-1, -8, 0)),  # 19
    Part.LineSegment(Vector(15.95, -8, 0), Vector(15.95, -10.15, 0)),  # 20
    Part.LineSegment(Vector(15.95, -10.15, 0), Vector(16.9, -10.15, 0)),  # 21
    Part.LineSegment(Vector(16.9, -10.15, 0), Vector(16.9, -8, 0)),  # 22
    Part.LineSegment(Vector(16.9, -8, 0), Vector(15.95, -8, 0)),  # 23
], False)
sketch7.addConstraint([
    Sketcher.Constraint("Coincident", 0, 2, 1, 1),
    Sketcher.Constraint("Coincident", 1, 2, 2, 1),
    Sketcher.Constraint("Coincident", 2, 2, 3, 1),
    Sketcher.Constraint("Coincident", 3, 2, 0, 1),
    Sketcher.Constraint("Coincident", 4, 2, 5, 1),
    Sketcher.Constraint("Coincident", 5, 2, 6, 1),
    Sketcher.Constraint("Coincident", 6, 2, 7, 1),
    Sketcher.Constraint("Coincident", 7, 2, 4, 1),
    Sketcher.Constraint("Coincident", 8, 2, 9, 1),
    Sketcher.Constraint("Coincident", 9, 2, 10, 1),
    Sketcher.Constraint("Coincident", 10, 2, 11, 1),
    Sketcher.Constraint("Coincident", 11, 2, 8, 1),
    Sketcher.Constraint("Coincident", 12, 2, 13, 1),
    Sketcher.Constraint("Coincident", 13, 2, 14, 1),
    Sketcher.Constraint("Coincident", 14, 2, 15, 1),
    Sketcher.Constraint("Coincident", 15, 2, 12, 1),
    Sketcher.Constraint("Coincident", 16, 2, 17, 1),
    Sketcher.Constraint("Coincident", 17, 2, 18, 1),
    Sketcher.Constraint("Coincident", 18, 2, 19, 1),
    Sketcher.Constraint("Coincident", 19, 2, 16, 1),
    Sketcher.Constraint("Coincident", 20, 2, 21, 1),
    Sketcher.Constraint("Coincident", 21, 2, 22, 1),
    Sketcher.Constraint("Coincident", 22, 2, 23, 1),
    Sketcher.Constraint("Coincident", 23, 2, 20, 1),
    Sketcher.Constraint("Vertical", 0),
    Sketcher.Constraint("Horizontal", 1),
    Sketcher.Constraint("Vertical", 2),
    Sketcher.Constraint("Horizontal", 3),
    Sketcher.Constraint("Vertical", 4),
    Sketcher.Constraint("Horizontal", 5),
    Sketcher.Constraint("Vertical", 6),
    Sketcher.Constraint("Horizontal", 7),
    Sketcher.Constraint("Vertical", 8),
    Sketcher.Constraint("Horizontal", 9),
    Sketcher.Constraint("Vertical", 10),
    Sketcher.Constraint("Horizontal", 11),
    Sketcher.Constraint("Vertical", 12),
    Sketcher.Constraint("Horizontal", 13),
    Sketcher.Constraint("Vertical", 14),
    Sketcher.Constraint("Horizontal", 15),
    Sketcher.Constraint("Vertical", 16),
    Sketcher.Constraint("Horizontal", 17),
    Sketcher.Constraint("Vertical", 18),
    Sketcher.Constraint("Horizontal", 19),
    Sketcher.Constraint("Vertical", 20),
    Sketcher.Constraint("Horizontal", 21),
    Sketcher.Constraint("Vertical", 22),
    Sketcher.Constraint("Horizontal", 23),
    Sketcher.Constraint("PointOnObject", 2, 2, -1),
    Sketcher.Constraint("PointOnObject", 10, 2, -1),
    Sketcher.Constraint("Horizontal", 1, 2, 8, 2),
    Sketcher.Constraint("Horizontal", 5, 2, 12, 2),
    Sketcher.Constraint("Horizontal", 7, 2, 14, 2),
    Sketcher.Constraint("Horizontal", 17, 2, 20, 2),
    Sketcher.Constraint("Horizontal", 19, 2, 22, 2),
    Sketcher.Constraint("Vertical", 3, 2, 4, 2),
    Sketcher.Constraint("Vertical", 2, 2, 5, 2),
    Sketcher.Constraint("Vertical", 11, 2, 12, 2),
    Sketcher.Constraint("Vertical", 10, 2, 13, 2),
    Sketcher.Constraint("Vertical", 7, 2, 16, 2),
    Sketcher.Constraint("Vertical", 6, 2, 17, 2),
    Sketcher.Constraint("Vertical", 15, 2, 20, 2),
    Sketcher.Constraint("Vertical", 14, 2, 21, 2),
    Sketcher.Constraint("Equal", 7, 9),
    Sketcher.Constraint("Equal", 2, 4),
    Sketcher.Constraint("Equal", 14, 16),
    Sketcher.Constraint("DistanceX", 0, 2, -1, 1, 1.0),
    Sketcher.Constraint("DistanceY", 6, 2, -1, 1, 16.0),
    Sketcher.Constraint("DistanceY", 18, 2, -1, 1, 8.0),
    Sketcher.Constraint("DistanceX", 1, 2, 8, 2, 16.0),
    Sketcher.Constraint("DistanceX", 1, 1, 1, 2, 0.95),
    Sketcher.Constraint("DistanceY", 0, 2, 0, 1, 2.15),
])
pad5 = body.newObject("PartDesign::Pad", "Pad004")
pad5.Profile = sketch7
pad5.Length = 3.3
pad5.Reversed = True

doc.recompute()
